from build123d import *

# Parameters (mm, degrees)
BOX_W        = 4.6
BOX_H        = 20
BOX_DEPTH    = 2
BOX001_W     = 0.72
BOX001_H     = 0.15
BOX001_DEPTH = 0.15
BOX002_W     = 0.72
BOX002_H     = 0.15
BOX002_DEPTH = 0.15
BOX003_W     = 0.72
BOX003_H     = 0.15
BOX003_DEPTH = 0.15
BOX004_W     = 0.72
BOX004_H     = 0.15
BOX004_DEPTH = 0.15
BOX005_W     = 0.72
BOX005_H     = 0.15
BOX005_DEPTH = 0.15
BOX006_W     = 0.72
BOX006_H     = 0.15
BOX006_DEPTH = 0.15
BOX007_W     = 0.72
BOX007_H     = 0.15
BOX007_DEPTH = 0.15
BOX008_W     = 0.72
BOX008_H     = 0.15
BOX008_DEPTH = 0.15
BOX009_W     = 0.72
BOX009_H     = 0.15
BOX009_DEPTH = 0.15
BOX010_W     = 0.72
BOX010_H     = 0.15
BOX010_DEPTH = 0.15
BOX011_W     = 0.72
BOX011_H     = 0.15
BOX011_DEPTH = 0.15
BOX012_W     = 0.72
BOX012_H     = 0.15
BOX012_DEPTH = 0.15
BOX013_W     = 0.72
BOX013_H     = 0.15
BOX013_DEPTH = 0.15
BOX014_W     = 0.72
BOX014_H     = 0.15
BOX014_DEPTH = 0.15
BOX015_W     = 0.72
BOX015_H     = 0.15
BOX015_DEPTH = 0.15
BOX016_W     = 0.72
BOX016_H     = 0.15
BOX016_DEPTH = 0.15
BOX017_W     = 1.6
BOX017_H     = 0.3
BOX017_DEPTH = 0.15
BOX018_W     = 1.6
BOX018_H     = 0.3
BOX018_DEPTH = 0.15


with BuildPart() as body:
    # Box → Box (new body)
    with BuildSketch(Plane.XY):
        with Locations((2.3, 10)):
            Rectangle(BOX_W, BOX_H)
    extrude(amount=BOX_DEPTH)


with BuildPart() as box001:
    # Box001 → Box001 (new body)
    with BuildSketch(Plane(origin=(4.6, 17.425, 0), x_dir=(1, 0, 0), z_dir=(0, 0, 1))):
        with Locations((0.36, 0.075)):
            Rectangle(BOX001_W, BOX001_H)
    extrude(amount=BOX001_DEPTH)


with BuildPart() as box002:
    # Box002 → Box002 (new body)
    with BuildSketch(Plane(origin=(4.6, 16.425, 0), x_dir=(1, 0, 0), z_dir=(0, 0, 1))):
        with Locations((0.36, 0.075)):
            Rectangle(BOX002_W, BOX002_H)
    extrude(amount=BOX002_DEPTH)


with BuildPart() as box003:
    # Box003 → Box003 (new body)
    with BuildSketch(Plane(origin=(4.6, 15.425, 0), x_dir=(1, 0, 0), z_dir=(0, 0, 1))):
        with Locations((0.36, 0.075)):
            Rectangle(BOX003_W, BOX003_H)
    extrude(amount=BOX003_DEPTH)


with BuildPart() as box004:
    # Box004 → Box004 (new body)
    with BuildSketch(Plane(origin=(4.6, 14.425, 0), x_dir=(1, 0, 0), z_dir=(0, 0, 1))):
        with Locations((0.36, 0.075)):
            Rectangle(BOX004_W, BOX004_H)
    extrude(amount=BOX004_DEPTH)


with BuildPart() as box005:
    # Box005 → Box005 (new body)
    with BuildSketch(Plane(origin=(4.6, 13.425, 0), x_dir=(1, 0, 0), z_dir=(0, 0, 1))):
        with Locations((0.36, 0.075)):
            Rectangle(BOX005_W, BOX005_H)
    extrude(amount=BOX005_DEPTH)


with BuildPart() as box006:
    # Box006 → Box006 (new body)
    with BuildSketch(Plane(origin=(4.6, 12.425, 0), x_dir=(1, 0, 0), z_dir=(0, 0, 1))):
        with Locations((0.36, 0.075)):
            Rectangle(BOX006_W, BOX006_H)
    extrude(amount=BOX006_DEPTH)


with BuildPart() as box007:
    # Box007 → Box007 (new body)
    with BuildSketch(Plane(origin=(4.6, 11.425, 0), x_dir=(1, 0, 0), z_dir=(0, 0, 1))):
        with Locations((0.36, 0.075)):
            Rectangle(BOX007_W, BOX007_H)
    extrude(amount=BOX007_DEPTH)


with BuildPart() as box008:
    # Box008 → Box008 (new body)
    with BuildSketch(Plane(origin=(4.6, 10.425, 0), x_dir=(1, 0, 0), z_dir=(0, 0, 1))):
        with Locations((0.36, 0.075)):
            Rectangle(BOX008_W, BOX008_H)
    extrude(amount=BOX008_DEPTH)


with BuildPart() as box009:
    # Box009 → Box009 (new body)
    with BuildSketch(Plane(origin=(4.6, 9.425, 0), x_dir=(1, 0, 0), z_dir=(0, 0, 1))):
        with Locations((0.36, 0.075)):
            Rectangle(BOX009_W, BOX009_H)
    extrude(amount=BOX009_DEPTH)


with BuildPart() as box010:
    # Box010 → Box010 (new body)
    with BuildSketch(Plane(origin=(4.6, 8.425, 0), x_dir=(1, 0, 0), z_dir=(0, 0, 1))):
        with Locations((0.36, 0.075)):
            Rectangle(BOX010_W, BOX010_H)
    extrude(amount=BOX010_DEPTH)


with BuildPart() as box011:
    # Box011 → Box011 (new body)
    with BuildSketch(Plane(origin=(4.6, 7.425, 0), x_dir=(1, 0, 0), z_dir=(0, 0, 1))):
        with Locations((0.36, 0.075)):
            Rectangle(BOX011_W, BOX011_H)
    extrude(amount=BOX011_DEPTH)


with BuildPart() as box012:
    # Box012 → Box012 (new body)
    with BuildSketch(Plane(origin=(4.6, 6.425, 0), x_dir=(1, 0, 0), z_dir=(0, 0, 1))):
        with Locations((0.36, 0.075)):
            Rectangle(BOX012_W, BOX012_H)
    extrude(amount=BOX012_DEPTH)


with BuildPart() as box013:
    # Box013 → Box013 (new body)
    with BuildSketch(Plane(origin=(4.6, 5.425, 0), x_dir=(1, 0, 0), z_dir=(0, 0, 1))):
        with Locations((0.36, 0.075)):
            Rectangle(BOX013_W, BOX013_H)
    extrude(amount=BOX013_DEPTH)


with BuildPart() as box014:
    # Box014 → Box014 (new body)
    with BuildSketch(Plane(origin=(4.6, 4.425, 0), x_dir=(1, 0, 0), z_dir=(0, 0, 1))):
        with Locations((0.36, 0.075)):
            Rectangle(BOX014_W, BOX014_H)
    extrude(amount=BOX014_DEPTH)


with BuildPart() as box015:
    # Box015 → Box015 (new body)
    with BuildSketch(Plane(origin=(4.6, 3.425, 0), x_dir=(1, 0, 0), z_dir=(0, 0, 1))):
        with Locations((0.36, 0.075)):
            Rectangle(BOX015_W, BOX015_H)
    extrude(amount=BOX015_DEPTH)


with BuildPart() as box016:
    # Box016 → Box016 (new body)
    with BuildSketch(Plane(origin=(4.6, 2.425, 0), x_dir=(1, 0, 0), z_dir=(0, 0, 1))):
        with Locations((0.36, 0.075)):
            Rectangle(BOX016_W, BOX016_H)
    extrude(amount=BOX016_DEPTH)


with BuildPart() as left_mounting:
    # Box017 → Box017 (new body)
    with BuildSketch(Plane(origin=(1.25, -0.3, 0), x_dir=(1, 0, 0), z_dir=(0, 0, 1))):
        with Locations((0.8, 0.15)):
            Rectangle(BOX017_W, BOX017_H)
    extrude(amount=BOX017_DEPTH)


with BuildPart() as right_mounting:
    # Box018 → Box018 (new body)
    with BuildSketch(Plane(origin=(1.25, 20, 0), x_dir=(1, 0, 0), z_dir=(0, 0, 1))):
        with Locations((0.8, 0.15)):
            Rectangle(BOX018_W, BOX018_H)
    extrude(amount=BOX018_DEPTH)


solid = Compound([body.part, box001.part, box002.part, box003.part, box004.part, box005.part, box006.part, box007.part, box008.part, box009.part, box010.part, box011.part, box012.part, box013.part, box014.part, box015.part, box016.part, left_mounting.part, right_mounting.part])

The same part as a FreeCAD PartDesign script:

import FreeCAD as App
import Part
import Sketcher

V = App.Vector

doc = App.newDocument("Part")
body = doc.addObject("PartDesign::Body", "Body")

# Sketch on XY plane
sketch1 = body.newObject("Sketcher::SketchObject", "Sketch")
sketch1.AttachmentSupport = (doc.getObject("XY_Plane"), [""])
sketch1.MapMode = "FlatFace"
sketch1.addGeometry([
    Part.LineSegment(V(0, 20, 0), V(0, 0, 0)),
    Part.LineSegment(V(0, 0, 0), V(4.6, 0, 0)),
    Part.LineSegment(V(4.6, 0, 0), V(4.6, 20, 0)),
    Part.LineSegment(V(4.6, 20, 0), V(0, 20, 0)),
], False)
sketch1.addConstraint([
    Sketcher.Constraint("Coincident", 0, 2, 1, 1),
    Sketcher.Constraint("Coincident", 1, 2, 2, 1),
    Sketcher.Constraint("Coincident", 2, 2, 3, 1),
    Sketcher.Constraint("Coincident", 3, 2, 0, 1),
    Sketcher.Constraint("Vertical", 0),
    Sketcher.Constraint("Horizontal", 1),
    Sketcher.Constraint("Vertical", 2),
    Sketcher.Constraint("Horizontal", 3),
    Sketcher.Constraint("Coincident", 0, 2, -1, 1),
    Sketcher.Constraint("DistanceY", 0, 2, 0, 1, 20.0),
    Sketcher.Constraint("DistanceX", 1, 1, 1, 2, 4.6),
])
pad1 = body.newObject("PartDesign::Pad", "Pad")
pad1.Profile = sketch1
pad1.Length = 2
body2 = doc.addObject("PartDesign::Body", "Body001")

# Sketch on XY plane
sketch2 = body2.newObject("Sketcher::SketchObject", "Sketch001")
sketch2.AttachmentSupport = (doc.getObject("XY_Plane001"), [""])
sketch2.MapMode = "FlatFace"
sketch2.addGeometry([
    Part.LineSegment(V(4.6, 17.57, 0), V(4.6, 17.43, 0)),
    Part.LineSegment(V(4.6, 17.43, 0), V(5.32, 17.43, 0)),
    Part.LineSegment(V(5.32, 17.43, 0), V(5.32, 17.57, 0)),
    Part.LineSegment(V(5.32, 17.57, 0), V(4.6, 17.57, 0)),
], False)
sketch2.addConstraint([
    Sketcher.Constraint("Coincident", 0, 2, 1, 1),
    Sketcher.Constraint("Coincident", 1, 2, 2, 1),
    Sketcher.Constraint("Coincident", 2, 2, 3, 1),
    Sketcher.Constraint("Coincident", 3, 2, 0, 1),
    Sketcher.Constraint("Vertical", 0),
    Sketcher.Constraint("Horizontal", 1),
    Sketcher.Constraint("Vertical", 2),
    Sketcher.Constraint("Horizontal", 3),
    Sketcher.Constraint("DistanceX", 1, 1, 1, 2, 0.72),
    Sketcher.Constraint("DistanceY", 0, 2, 0, 1, 0.15),
    Sketcher.Constraint("DistanceX", -1, 1, 0, 2, 4.6),
    Sketcher.Constraint("DistanceY", -1, 1, 0, 2, 17.425),
])
pad2 = body2.newObject("PartDesign::Pad", "Pad001")
pad2.Profile = sketch2
pad2.Length = 0.15
body3 = doc.addObject("PartDesign::Body", "Body002")

# Sketch on XY plane
sketch3 = body3.newObject("Sketcher::SketchObject", "Sketch002")
sketch3.AttachmentSupport = (doc.getObject("XY_Plane002"), [""])
sketch3.MapMode = "FlatFace"
sketch3.addGeometry([
    Part.LineSegment(V(4.6, 16.57, 0), V(4.6, 16.43, 0)),
    Part.LineSegment(V(4.6, 16.43, 0), V(5.32, 16.43, 0)),
    Part.LineSegment(V(5.32, 16.43, 0), V(5.32, 16.57, 0)),
    Part.LineSegment(V(5.32, 16.57, 0), V(4.6, 16.57, 0)),
], False)
sketch3.addConstraint([
    Sketcher.Constraint("Coincident", 0, 2, 1, 1),
    Sketcher.Constraint("Coincident", 1, 2, 2, 1),
    Sketcher.Constraint("Coincident", 2, 2, 3, 1),
    Sketcher.Constraint("Coincident", 3, 2, 0, 1),
    Sketcher.Constraint("Vertical", 0),
    Sketcher.Constraint("Horizontal", 1),
    Sketcher.Constraint("Vertical", 2),
    Sketcher.Constraint("Horizontal", 3),
    Sketcher.Constraint("DistanceX", 1, 1, 1, 2, 0.72),
    Sketcher.Constraint("DistanceY", 0, 2, 0, 1, 0.15),
    Sketcher.Constraint("DistanceX", -1, 1, 0, 2, 4.6),
    Sketcher.Constraint("DistanceY", -1, 1, 0, 2, 16.425),
])
pad3 = body3.newObject("PartDesign::Pad", "Pad002")
pad3.Profile = sketch3
pad3.Length = 0.15
body4 = doc.addObject("PartDesign::Body", "Body003")

# Sketch on XY plane
sketch4 = body4.newObject("Sketcher::SketchObject", "Sketch003")
sketch4.AttachmentSupport = (doc.getObject("XY_Plane003"), [""])
sketch4.MapMode = "FlatFace"
sketch4.addGeometry([
    Part.LineSegment(V(4.6, 15.57, 0), V(4.6, 15.43, 0)),
    Part.LineSegment(V(4.6, 15.43, 0), V(5.32, 15.43, 0)),
    Part.LineSegment(V(5.32, 15.43, 0), V(5.32, 15.57, 0)),
    Part.LineSegment(V(5.32, 15.57, 0), V(4.6, 15.57, 0)),
], False)
sketch4.addConstraint([
    Sketcher.Constraint("Coincident", 0, 2, 1, 1),
    Sketcher.Constraint("Coincident", 1, 2, 2, 1),
    Sketcher.Constraint("Coincident", 2, 2, 3, 1),
    Sketcher.Constraint("Coincident", 3, 2, 0, 1),
    Sketcher.Constraint("Vertical", 0),
    Sketcher.Constraint("Horizontal", 1),
    Sketcher.Constraint("Vertical", 2),
    Sketcher.Constraint("Horizontal", 3),
    Sketcher.Constraint("DistanceX", 1, 1, 1, 2, 0.72),
    Sketcher.Constraint("DistanceY", 0, 2, 0, 1, 0.15),
    Sketcher.Constraint("DistanceX", -1, 1, 0, 2, 4.6),
    Sketcher.Constraint("DistanceY", -1, 1, 0, 2, 15.425),
])
pad4 = body4.newObject("PartDesign::Pad", "Pad003")
pad4.Profile = sketch4
pad4.Length = 0.15
body5 = doc.addObject("PartDesign::Body", "Body004")

# Sketch on XY plane
sketch5 = body5.newObject("Sketcher::SketchObject", "Sketch004")
sketch5.AttachmentSupport = (doc.getObject("XY_Plane004"), [""])
sketch5.MapMode = "FlatFace"
sketch5.addGeometry([
    Part.LineSegment(V(4.6, 14.57, 0), V(4.6, 14.43, 0)),
    Part.LineSegment(V(4.6, 14.43, 0), V(5.32, 14.43, 0)),
    Part.LineSegment(V(5.32, 14.43, 0), V(5.32, 14.57, 0)),
    Part.LineSegment(V(5.32, 14.57, 0), V(4.6, 14.57, 0)),
], False)
sketch5.addConstraint([
    Sketcher.Constraint("Coincident", 0, 2, 1, 1),
    Sketcher.Constraint("Coincident", 1, 2, 2, 1),
    Sketcher.Constraint("Coincident", 2, 2, 3, 1),
    Sketcher.Constraint("Coincident", 3, 2, 0, 1),
    Sketcher.Constraint("Vertical", 0),
    Sketcher.Constraint("Horizontal", 1),
    Sketcher.Constraint("Vertical", 2),
    Sketcher.Constraint("Horizontal", 3),
    Sketcher.Constraint("DistanceX", 1, 1, 1, 2, 0.72),
    Sketcher.Constraint("DistanceY", 0, 2, 0, 1, 0.15),
    Sketcher.Constraint("DistanceX", -1, 1, 0, 2, 4.6),
    Sketcher.Constraint("DistanceY", -1, 1, 0, 2, 14.425),
])
pad5 = body5.newObject("PartDesign::Pad", "Pad004")
pad5.Profile = sketch5
pad5.Length = 0.15
body6 = doc.addObject("PartDesign::Body", "Body005")

# Sketch on XY plane
sketch6 = body6.newObject("Sketcher::SketchObject", "Sketch005")
sketch6.AttachmentSupport = (doc.getObject("XY_Plane005"), [""])
sketch6.MapMode = "FlatFace"
sketch6.addGeometry([
    Part.LineSegment(V(4.6, 13.57, 0), V(4.6, 13.43, 0)),
    Part.LineSegment(V(4.6, 13.43, 0), V(5.32, 13.43, 0)),
    Part.LineSegment(V(5.32, 13.43, 0), V(5.32, 13.57, 0)),
    Part.LineSegment(V(5.32, 13.57, 0), V(4.6, 13.57, 0)),
], False)
sketch6.addConstraint([
    Sketcher.Constraint("Coincident", 0, 2, 1, 1),
    Sketcher.Constraint("Coincident", 1, 2, 2, 1),
    Sketcher.Constraint("Coincident", 2, 2, 3, 1),
    Sketcher.Constraint("Coincident", 3, 2, 0, 1),
    Sketcher.Constraint("Vertical", 0),
    Sketcher.Constraint("Horizontal", 1),
    Sketcher.Constraint("Vertical", 2),
    Sketcher.Constraint("Horizontal", 3),
    Sketcher.Constraint("DistanceX", 1, 1, 1, 2, 0.72),
    Sketcher.Constraint("DistanceY", 0, 2, 0, 1, 0.15),
    Sketcher.Constraint("DistanceX", -1, 1, 0, 2, 4.6),
    Sketcher.Constraint("DistanceY", -1, 1, 0, 2, 13.425),
])
pad6 = body6.newObject("PartDesign::Pad", "Pad005")
pad6.Profile = sketch6
pad6.Length = 0.15
body7 = doc.addObject("PartDesign::Body", "Body006")

# Sketch on XY plane
sketch7 = body7.newObject("Sketcher::SketchObject", "Sketch006")
sketch7.AttachmentSupport = (doc.getObject("XY_Plane006"), [""])
sketch7.MapMode = "FlatFace"
sketch7.addGeometry([
    Part.LineSegment(V(4.6, 12.57, 0), V(4.6, 12.43, 0)),
    Part.LineSegment(V(4.6, 12.43, 0), V(5.32, 12.43, 0)),
    Part.LineSegment(V(5.32, 12.43, 0), V(5.32, 12.57, 0)),
    Part.LineSegment(V(5.32, 12.57, 0), V(4.6, 12.57, 0)),
], False)
sketch7.addConstraint([
    Sketcher.Constraint("Coincident", 0, 2, 1, 1),
    Sketcher.Constraint("Coincident", 1, 2, 2, 1),
    Sketcher.Constraint("Coincident", 2, 2, 3, 1),
    Sketcher.Constraint("Coincident", 3, 2, 0, 1),
    Sketcher.Constraint("Vertical", 0),
    Sketcher.Constraint("Horizontal", 1),
    Sketcher.Constraint("Vertical", 2),
    Sketcher.Constraint("Horizontal", 3),
    Sketcher.Constraint("DistanceX", 1, 1, 1, 2, 0.72),
    Sketcher.Constraint("DistanceY", 0, 2, 0, 1, 0.15),
    Sketcher.Constraint("DistanceX", -1, 1, 0, 2, 4.6),
    Sketcher.Constraint("DistanceY", -1, 1, 0, 2, 12.425),
])
pad7 = body7.newObject("PartDesign::Pad", "Pad006")
pad7.Profile = sketch7
pad7.Length = 0.15
body8 = doc.addObject("PartDesign::Body", "Body007")

# Sketch on XY plane
sketch8 = body8.newObject("Sketcher::SketchObject", "Sketch007")
sketch8.AttachmentSupport = (doc.getObject("XY_Plane007"), [""])
sketch8.MapMode = "FlatFace"
sketch8.addGeometry([
    Part.LineSegment(V(4.6, 11.57, 0), V(4.6, 11.43, 0)),
    Part.LineSegment(V(4.6, 11.43, 0), V(5.32, 11.43, 0)),
    Part.LineSegment(V(5.32, 11.43, 0), V(5.32, 11.57, 0)),
    Part.LineSegment(V(5.32, 11.57, 0), V(4.6, 11.57, 0)),
], False)
sketch8.addConstraint([
    Sketcher.Constraint("Coincident", 0, 2, 1, 1),
    Sketcher.Constraint("Coincident", 1, 2, 2, 1),
    Sketcher.Constraint("Coincident", 2, 2, 3, 1),
    Sketcher.Constraint("Coincident", 3, 2, 0, 1),
    Sketcher.Constraint("Vertical", 0),
    Sketcher.Constraint("Horizontal", 1),
    Sketcher.Constraint("Vertical", 2),
    Sketcher.Constraint("Horizontal", 3),
    Sketcher.Constraint("DistanceX", 1, 1, 1, 2, 0.72),
    Sketcher.Constraint("DistanceY", 0, 2, 0, 1, 0.15),
    Sketcher.Constraint("DistanceX", -1, 1, 0, 2, 4.6),
    Sketcher.Constraint("DistanceY", -1, 1, 0, 2, 11.425),
])
pad8 = body8.newObject("PartDesign::Pad", "Pad007")
pad8.Profile = sketch8
pad8.Length = 0.15
body9 = doc.addObject("PartDesign::Body", "Body008")

# Sketch on XY plane
sketch9 = body9.newObject("Sketcher::SketchObject", "Sketch008")
sketch9.AttachmentSupport = (doc.getObject("XY_Plane008"), [""])
sketch9.MapMode = "FlatFace"
sketch9.addGeometry([
    Part.LineSegment(V(4.6, 10.57, 0), V(4.6, 10.43, 0)),
    Part.LineSegment(V(4.6, 10.43, 0), V(5.32, 10.43, 0)),
    Part.LineSegment(V(5.32, 10.43, 0), V(5.32, 10.57, 0)),
    Part.LineSegment(V(5.32, 10.57, 0), V(4.6, 10.57, 0)),
], False)
sketch9.addConstraint([
    Sketcher.Constraint("Coincident", 0, 2, 1, 1),
    Sketcher.Constraint("Coincident", 1, 2, 2, 1),
    Sketcher.Constraint("Coincident", 2, 2, 3, 1),
    Sketcher.Constraint("Coincident", 3, 2, 0, 1),
    Sketcher.Constraint("Vertical", 0),
    Sketcher.Constraint("Horizontal", 1),
    Sketcher.Constraint("Vertical", 2),
    Sketcher.Constraint("Horizontal", 3),
    Sketcher.Constraint("DistanceX", 1, 1, 1, 2, 0.72),
    Sketcher.Constraint("DistanceY", 0, 2, 0, 1, 0.15),
    Sketcher.Constraint("DistanceX", -1, 1, 0, 2, 4.6),
    Sketcher.Constraint("DistanceY", -1, 1, 0, 2, 10.425),
])
pad9 = body9.newObject("PartDesign::Pad", "Pad008")
pad9.Profile = sketch9
pad9.Length = 0.15
body10 = doc.addObject("PartDesign::Body", "Body009")

# Sketch on XY plane
sketch10 = body10.newObject("Sketcher::SketchObject", "Sketch009")
sketch10.AttachmentSupport = (doc.getObject("XY_Plane009"), [""])
sketch10.MapMode = "FlatFace"
sketch10.addGeometry([
    Part.LineSegment(V(4.6, 9.57, 0), V(4.6, 9.43, 0)),
    Part.LineSegment(V(4.6, 9.43, 0), V(5.32, 9.43, 0)),
    Part.LineSegment(V(5.32, 9.43, 0), V(5.32, 9.57, 0)),
    Part.LineSegment(V(5.32, 9.57, 0), V(4.6, 9.57, 0)),
], False)
sketch10.addConstraint([
    Sketcher.Constraint("Coincident", 0, 2, 1, 1),
    Sketcher.Constraint("Coincident", 1, 2, 2, 1),
    Sketcher.Constraint("Coincident", 2, 2, 3, 1),
    Sketcher.Constraint("Coincident", 3, 2, 0, 1),
    Sketcher.Constraint("Vertical", 0),
    Sketcher.Constraint("Horizontal", 1),
    Sketcher.Constraint("Vertical", 2),
    Sketcher.Constraint("Horizontal", 3),
    Sketcher.Constraint("DistanceX", 1, 1, 1, 2, 0.72),
    Sketcher.Constraint("DistanceY", 0, 2, 0, 1, 0.15),
    Sketcher.Constraint("DistanceX", -1, 1, 0, 2, 4.6),
    Sketcher.Constraint("DistanceY", -1, 1, 0, 2, 9.425),
])
pad10 = body10.newObject("PartDesign::Pad", "Pad009")
pad10.Profile = sketch10
pad10.Length = 0.15
body11 = doc.addObject("PartDesign::Body", "Body010")

# Sketch on XY plane
sketch11 = body11.newObject("Sketcher::SketchObject", "Sketch010")
sketch11.AttachmentSupport = (doc.getObject("XY_Plane010"), [""])
sketch11.MapMode = "FlatFace"
sketch11.addGeometry([
    Part.LineSegment(V(4.6, 8.57, 0), V(4.6, 8.43, 0)),
    Part.LineSegment(V(4.6, 8.43, 0), V(5.32, 8.43, 0)),
    Part.LineSegment(V(5.32, 8.43, 0), V(5.32, 8.57, 0)),
    Part.LineSegment(V(5.32, 8.57, 0), V(4.6, 8.57, 0)),
], False)
sketch11.addConstraint([
    Sketcher.Constraint("Coincident", 0, 2, 1, 1),
    Sketcher.Constraint("Coincident", 1, 2, 2, 1),
    Sketcher.Constraint("Coincident", 2, 2, 3, 1),
    Sketcher.Constraint("Coincident", 3, 2, 0, 1),
    Sketcher.Constraint("Vertical", 0),
    Sketcher.Constraint("Horizontal", 1),
    Sketcher.Constraint("Vertical", 2),
    Sketcher.Constraint("Horizontal", 3),
    Sketcher.Constraint("DistanceX", 1, 1, 1, 2, 0.72),
    Sketcher.Constraint("DistanceY", 0, 2, 0, 1, 0.15),
    Sketcher.Constraint("DistanceX", -1, 1, 0, 2, 4.6),
    Sketcher.Constraint("DistanceY", -1, 1, 0, 2, 8.425),
])
pad11 = body11.newObject("PartDesign::Pad", "Pad010")
pad11.Profile = sketch11
pad11.Length = 0.15
body12 = doc.addObject("PartDesign::Body", "Body011")

# Sketch on XY plane
sketch12 = body12.newObject("Sketcher::SketchObject", "Sketch011")
sketch12.AttachmentSupport = (doc.getObject("XY_Plane011"), [""])
sketch12.MapMode = "FlatFace"
sketch12.addGeometry([
    Part.LineSegment(V(4.6, 7.58, 0), V(4.6, 7.42, 0)),
    Part.LineSegment(V(4.6, 7.42, 0), V(5.32, 7.42, 0)),
    Part.LineSegment(V(5.32, 7.42, 0), V(5.32, 7.58, 0)),
    Part.LineSegment(V(5.32, 7.58, 0), V(4.6, 7.58, 0)),
], False)
sketch12.addConstraint([
    Sketcher.Constraint("Coincident", 0, 2, 1, 1),
    Sketcher.Constraint("Coincident", 1, 2, 2, 1),
    Sketcher.Constraint("Coincident", 2, 2, 3, 1),
    Sketcher.Constraint("Coincident", 3, 2, 0, 1),
    Sketcher.Constraint("Vertical", 0),
    Sketcher.Constraint("Horizontal", 1),
    Sketcher.Constraint("Vertical", 2),
    Sketcher.Constraint("Horizontal", 3),
    Sketcher.Constraint("DistanceX", 1, 1, 1, 2, 0.72),
    Sketcher.Constraint("DistanceY", 0, 2, 0, 1, 0.15),
    Sketcher.Constraint("DistanceX", -1, 1, 0, 2, 4.6),
    Sketcher.Constraint("DistanceY", -1, 1, 0, 2, 7.425),
])
pad12 = body12.newObject("PartDesign::Pad", "Pad011")
pad12.Profile = sketch12
pad12.Length = 0.15
body13 = doc.addObject("PartDesign::Body", "Body012")

# Sketch on XY plane
sketch13 = body13.newObject("Sketcher::SketchObject", "Sketch012")
sketch13.AttachmentSupport = (doc.getObject("XY_Plane012"), [""])
sketch13.MapMode = "FlatFace"
sketch13.addGeometry([
    Part.LineSegment(V(4.6, 6.58, 0), V(4.6, 6.42, 0)),
    Part.LineSegment(V(4.6, 6.42, 0), V(5.32, 6.42, 0)),
    Part.LineSegment(V(5.32, 6.42, 0), V(5.32, 6.58, 0)),
    Part.LineSegment(V(5.32, 6.58, 0), V(4.6, 6.58, 0)),
], False)
sketch13.addConstraint([
    Sketcher.Constraint("Coincident", 0, 2, 1, 1),
    Sketcher.Constraint("Coincident", 1, 2, 2, 1),
    Sketcher.Constraint("Coincident", 2, 2, 3, 1),
    Sketcher.Constraint("Coincident", 3, 2, 0, 1),
    Sketcher.Constraint("Vertical", 0),
    Sketcher.Constraint("Horizontal", 1),
    Sketcher.Constraint("Vertical", 2),
    Sketcher.Constraint("Horizontal", 3),
    Sketcher.Constraint("DistanceX", 1, 1, 1, 2, 0.72),
    Sketcher.Constraint("DistanceY", 0, 2, 0, 1, 0.15),
    Sketcher.Constraint("DistanceX", -1, 1, 0, 2, 4.6),
    Sketcher.Constraint("DistanceY", -1, 1, 0, 2, 6.425),
])
pad13 = body13.newObject("PartDesign::Pad", "Pad012")
pad13.Profile = sketch13
pad13.Length = 0.15
body14 = doc.addObject("PartDesign::Body", "Body013")

# Sketch on XY plane
sketch14 = body14.newObject("Sketcher::SketchObject", "Sketch013")
sketch14.AttachmentSupport = (doc.getObject("XY_Plane013"), [""])
sketch14.MapMode = "FlatFace"
sketch14.addGeometry([
    Part.LineSegment(V(4.6, 5.58, 0), V(4.6, 5.42, 0)),
    Part.LineSegment(V(4.6, 5.42, 0), V(5.32, 5.42, 0)),
    Part.LineSegment(V(5.32, 5.42, 0), V(5.32, 5.58, 0)),
    Part.LineSegment(V(5.32, 5.58, 0), V(4.6, 5.58, 0)),
], False)
sketch14.addConstraint([
    Sketcher.Constraint("Coincident", 0, 2, 1, 1),
    Sketcher.Constraint("Coincident", 1, 2, 2, 1),
    Sketcher.Constraint("Coincident", 2, 2, 3, 1),
    Sketcher.Constraint("Coincident", 3, 2, 0, 1),
    Sketcher.Constraint("Vertical", 0),
    Sketcher.Constraint("Horizontal", 1),
    Sketcher.Constraint("Vertical", 2),
    Sketcher.Constraint("Horizontal", 3),
    Sketcher.Constraint("DistanceX", 1, 1, 1, 2, 0.72),
    Sketcher.Constraint("DistanceY", 0, 2, 0, 1, 0.15),
    Sketcher.Constraint("DistanceX", -1, 1, 0, 2, 4.6),
    Sketcher.Constraint("DistanceY", -1, 1, 0, 2, 5.425),
])
pad14 = body14.newObject("PartDesign::Pad", "Pad013")
pad14.Profile = sketch14
pad14.Length = 0.15
body15 = doc.addObject("PartDesign::Body", "Body014")

# Sketch on XY plane
sketch15 = body15.newObject("Sketcher::SketchObject", "Sketch014")
sketch15.AttachmentSupport = (doc.getObject("XY_Plane014"), [""])
sketch15.MapMode = "FlatFace"
sketch15.addGeometry([
    Part.LineSegment(V(4.6, 4.58, 0), V(4.6, 4.42, 0)),
    Part.LineSegment(V(4.6, 4.42, 0), V(5.32, 4.42, 0)),
    Part.LineSegment(V(5.32, 4.42, 0), V(5.32, 4.58, 0)),
    Part.LineSegment(V(5.32, 4.58, 0), V(4.6, 4.58, 0)),
], False)
sketch15.addConstraint([
    Sketcher.Constraint("Coincident", 0, 2, 1, 1),
    Sketcher.Constraint("Coincident", 1, 2, 2, 1),
    Sketcher.Constraint("Coincident", 2, 2, 3, 1),
    Sketcher.Constraint("Coincident", 3, 2, 0, 1),
    Sketcher.Constraint("Vertical", 0),
    Sketcher.Constraint("Horizontal", 1),
    Sketcher.Constraint("Vertical", 2),
    Sketcher.Constraint("Horizontal", 3),
    Sketcher.Constraint("DistanceX", 1, 1, 1, 2, 0.72),
    Sketcher.Constraint("DistanceY", 0, 2, 0, 1, 0.15),
    Sketcher.Constraint("DistanceX", -1, 1, 0, 2, 4.6),
    Sketcher.Constraint("DistanceY", -1, 1, 0, 2, 4.425),
])
pad15 = body15.newObject("PartDesign::Pad", "Pad014")
pad15.Profile = sketch15
pad15.Length = 0.15
body16 = doc.addObject("PartDesign::Body", "Body015")

# Sketch on XY plane
sketch16 = body16.newObject("Sketcher::SketchObject", "Sketch015")
sketch16.AttachmentSupport = (doc.getObject("XY_Plane015"), [""])
sketch16.MapMode = "FlatFace"
sketch16.addGeometry([
    Part.LineSegment(V(4.6, 3.58, 0), V(4.6, 3.42, 0)),
    Part.LineSegment(V(4.6, 3.42, 0), V(5.32, 3.42, 0)),
    Part.LineSegment(V(5.32, 3.42, 0), V(5.32, 3.58, 0)),
    Part.LineSegment(V(5.32, 3.58, 0), V(4.6, 3.58, 0)),
], False)
sketch16.addConstraint([
    Sketcher.Constraint("Coincident", 0, 2, 1, 1),
    Sketcher.Constraint("Coincident", 1, 2, 2, 1),
    Sketcher.Constraint("Coincident", 2, 2, 3, 1),
    Sketcher.Constraint("Coincident", 3, 2, 0, 1),
    Sketcher.Constraint("Vertical", 0),
    Sketcher.Constraint("Horizontal", 1),
    Sketcher.Constraint("Vertical", 2),
    Sketcher.Constraint("Horizontal", 3),
    Sketcher.Constraint("DistanceX", 1, 1, 1, 2, 0.72),
    Sketcher.Constraint("DistanceY", 0, 2, 0, 1, 0.15),
    Sketcher.Constraint("DistanceX", -1, 1, 0, 2, 4.6),
    Sketcher.Constraint("DistanceY", -1, 1, 0, 2, 3.425),
])
pad16 = body16.newObject("PartDesign::Pad", "Pad015")
pad16.Profile = sketch16
pad16.Length = 0.15
body17 = doc.addObject("PartDesign::Body", "Body016")

# Sketch on XY plane
sketch17 = body17.newObject("Sketcher::SketchObject", "Sketch016")
sketch17.AttachmentSupport = (doc.getObject("XY_Plane016"), [""])
sketch17.MapMode = "FlatFace"
sketch17.addGeometry([
    Part.LineSegment(V(4.6, 2.58, 0), V(4.6, 2.42, 0)),
    Part.LineSegment(V(4.6, 2.42, 0), V(5.32, 2.42, 0)),
    Part.LineSegment(V(5.32, 2.42, 0), V(5.32, 2.58, 0)),
    Part.LineSegment(V(5.32, 2.58, 0), V(4.6, 2.58, 0)),
], False)
sketch17.addConstraint([
    Sketcher.Constraint("Coincident", 0, 2, 1, 1),
    Sketcher.Constraint("Coincident", 1, 2, 2, 1),
    Sketcher.Constraint("Coincident", 2, 2, 3, 1),
    Sketcher.Constraint("Coincident", 3, 2, 0, 1),
    Sketcher.Constraint("Vertical", 0),
    Sketcher.Constraint("Horizontal", 1),
    Sketcher.Constraint("Vertical", 2),
    Sketcher.Constraint("Horizontal", 3),
    Sketcher.Constraint("DistanceX", 1, 1, 1, 2, 0.72),
    Sketcher.Constraint("DistanceY", 0, 2, 0, 1, 0.15),
    Sketcher.Constraint("DistanceX", -1, 1, 0, 2, 4.6),
    Sketcher.Constraint("DistanceY", -1, 1, 0, 2, 2.425),
])
pad17 = body17.newObject("PartDesign::Pad", "Pad016")
pad17.Profile = sketch17
pad17.Length = 0.15
body18 = doc.addObject("PartDesign::Body", "Body017")

# Sketch on XY plane
sketch18 = body18.newObject("Sketcher::SketchObject", "Sketch017")
sketch18.AttachmentSupport = (doc.getObject("XY_Plane017"), [""])
sketch18.MapMode = "FlatFace"
sketch18.addGeometry([
    Part.LineSegment(V(1.25, 0, 0), V(1.25, -0.3, 0)),
    Part.LineSegment(V(1.25, -0.3, 0), V(2.85, -0.3, 0)),
    Part.LineSegment(V(2.85, -0.3, 0), V(2.85, 0, 0)),
    Part.LineSegment(V(2.85, 0, 0), V(1.25, 0, 0)),
], False)
sketch18.addConstraint([
    Sketcher.Constraint("Coincident", 0, 2, 1, 1),
    Sketcher.Constraint("Coincident", 1, 2, 2, 1),
    Sketcher.Constraint("Coincident", 2, 2, 3, 1),
    Sketcher.Constraint("Coincident", 3, 2, 0, 1),
    Sketcher.Constraint("Vertical", 0),
    Sketcher.Constraint("Horizontal", 1),
    Sketcher.Constraint("Vertical", 2),
    Sketcher.Constraint("Horizontal", 3),
    Sketcher.Constraint("PointOnObject", 2, 2, -1),
    Sketcher.Constraint("DistanceX", 1, 1, 1, 2, 1.6),
    Sketcher.Constraint("DistanceY", 0, 2, 0, 1, 0.3),
    Sketcher.Constraint("DistanceX", -1, 1, 0, 2, 1.25),
])
pad18 = body18.newObject("PartDesign::Pad", "Pad017")
pad18.Profile = sketch18
pad18.Length = 0.15
body19 = doc.addObject("PartDesign::Body", "Body018")

# Sketch on XY plane
sketch19 = body19.newObject("Sketcher::SketchObject", "Sketch018")
sketch19.AttachmentSupport = (doc.getObject("XY_Plane018"), [""])
sketch19.MapMode = "FlatFace"
sketch19.addGeometry([
    Part.LineSegment(V(1.25, 20.3, 0), V(1.25, 20, 0)),
    Part.LineSegment(V(1.25, 20, 0), V(2.85, 20, 0)),
    Part.LineSegment(V(2.85, 20, 0), V(2.85, 20.3, 0)),
    Part.LineSegment(V(2.85, 20.3, 0), V(1.25, 20.3, 0)),
], False)
sketch19.addConstraint([
    Sketcher.Constraint("Coincident", 0, 2, 1, 1),
    Sketcher.Constraint("Coincident", 1, 2, 2, 1),
    Sketcher.Constraint("Coincident", 2, 2, 3, 1),
    Sketcher.Constraint("Coincident", 3, 2, 0, 1),
    Sketcher.Constraint("Vertical", 0),
    Sketcher.Constraint("Horizontal", 1),
    Sketcher.Constraint("Vertical", 2),
    Sketcher.Constraint("Horizontal", 3),
    Sketcher.Constraint("DistanceX", 1, 1, 1, 2, 1.6),
    Sketcher.Constraint("DistanceY", 0, 2, 0, 1, 0.3),
    Sketcher.Constraint("DistanceY", -1, 1, 0, 2, 20.0),
    Sketcher.Constraint("DistanceX", -1, 1, 0, 2, 1.25),
])
pad19 = body19.newObject("PartDesign::Pad", "Pad018")
pad19.Profile = sketch19
pad19.Length = 0.15

doc.recompute()
